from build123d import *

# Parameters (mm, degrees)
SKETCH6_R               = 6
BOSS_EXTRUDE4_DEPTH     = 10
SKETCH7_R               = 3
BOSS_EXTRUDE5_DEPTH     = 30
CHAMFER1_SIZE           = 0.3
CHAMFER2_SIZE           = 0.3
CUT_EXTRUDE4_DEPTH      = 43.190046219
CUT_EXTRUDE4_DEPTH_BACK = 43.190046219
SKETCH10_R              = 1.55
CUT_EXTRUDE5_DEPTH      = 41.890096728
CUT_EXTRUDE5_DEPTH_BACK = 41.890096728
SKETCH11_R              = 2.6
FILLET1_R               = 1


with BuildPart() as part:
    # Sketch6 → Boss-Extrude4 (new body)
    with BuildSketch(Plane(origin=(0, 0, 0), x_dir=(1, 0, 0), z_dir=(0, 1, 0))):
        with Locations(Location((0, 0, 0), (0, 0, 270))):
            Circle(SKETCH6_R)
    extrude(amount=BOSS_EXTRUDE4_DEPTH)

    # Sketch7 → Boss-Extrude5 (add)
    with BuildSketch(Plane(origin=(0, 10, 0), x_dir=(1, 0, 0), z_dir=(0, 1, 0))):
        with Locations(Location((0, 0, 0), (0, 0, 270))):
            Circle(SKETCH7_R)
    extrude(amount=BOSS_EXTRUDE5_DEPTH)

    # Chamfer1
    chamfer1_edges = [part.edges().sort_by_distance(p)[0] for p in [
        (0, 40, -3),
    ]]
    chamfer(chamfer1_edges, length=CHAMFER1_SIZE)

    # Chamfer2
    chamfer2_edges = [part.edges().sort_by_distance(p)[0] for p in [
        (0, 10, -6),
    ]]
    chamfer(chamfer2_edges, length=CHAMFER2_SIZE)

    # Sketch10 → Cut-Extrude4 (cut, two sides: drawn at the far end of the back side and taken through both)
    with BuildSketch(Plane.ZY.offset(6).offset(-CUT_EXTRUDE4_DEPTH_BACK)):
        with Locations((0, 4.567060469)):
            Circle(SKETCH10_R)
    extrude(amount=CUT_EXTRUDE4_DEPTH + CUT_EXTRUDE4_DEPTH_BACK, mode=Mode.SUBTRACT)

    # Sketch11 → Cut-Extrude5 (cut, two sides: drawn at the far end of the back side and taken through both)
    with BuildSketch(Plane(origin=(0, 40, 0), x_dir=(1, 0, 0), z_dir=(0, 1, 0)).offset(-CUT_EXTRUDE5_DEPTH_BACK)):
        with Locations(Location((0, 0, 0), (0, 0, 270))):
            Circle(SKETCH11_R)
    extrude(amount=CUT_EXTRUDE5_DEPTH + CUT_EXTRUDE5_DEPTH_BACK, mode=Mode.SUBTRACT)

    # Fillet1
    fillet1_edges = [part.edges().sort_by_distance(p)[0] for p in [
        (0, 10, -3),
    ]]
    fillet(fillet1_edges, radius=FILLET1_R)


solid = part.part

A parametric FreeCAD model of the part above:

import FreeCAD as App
import Part
import Sketcher
from FreeCAD import Vector


def edges_at(feature, points):
    """Names of the edges that pass closest to the given points."""
    edges = feature.Shape.Edges
    near = lambda p: min(range(len(edges)), key=lambda i: edges[i].distToShape(Part.Vertex(*p))[0])
    return sorted({f"Edge{near(p) + 1}" for p in points})

doc = App.newDocument("Part")
params = doc.addObject("Spreadsheet::Sheet", "Params")
for row, (alias, value) in enumerate([
    ("sketch1_diameter", "12 mm"),
    ("pad1_length", "10 mm"),
    ("sketch2_diameter", "6 mm"),
    ("pad2_length", "30 mm"),
    ("chamfer_size", "0.3 mm"),
    ("chamfer2_size", "0.3 mm"),
    ("sketch3_diameter", "3.1 mm"),
    ("sketch4_diameter", "5.2 mm"),
    ("fillet_radius", "1 mm"),
], start=1):
    params.set(f"A{row}", alias)
    params.set(f"B{row}", "=" + value)
    params.setAlias(f"B{row}", alias)

body = doc.addObject("PartDesign::Body", "Body")

# Sketch on XZ plane
sketch1 = body.newObject("Sketcher::SketchObject", "Sketch")
sketch1.AttachmentSupport = (doc.getObject("XZ_Plane"), [""])
sketch1.MapMode = "FlatFace"
sketch1.addGeometry(Part.Circle(Vector(0, 0, 0), Vector(0, 0, 1), 6), False)
sketch1.addConstraint(Sketcher.Constraint("Coincident", 0, 3, -1, 1))
sketch1.addConstraint(Sketcher.Constraint("Diameter", 0, 12.0))
sketch1.setExpression("Constraints[1]", "Params.sketch1_diameter")
pad1 = body.newObject("PartDesign::Pad", "Pad")
pad1.Profile = sketch1
pad1.setExpression("Length", "Params.pad1_length")
pad1.Reversed = True

# Sketch on XZ plane
sketch2 = body.newObject("Sketcher::SketchObject", "Sketch001")
sketch2.AttachmentSupport = (doc.getObject("XZ_Plane"), [""])
sketch2.MapMode = "FlatFace"
sketch2.AttachmentOffset = App.Placement(Vector(0, 0, -10), App.Rotation())
sketch2.addGeometry(Part.Circle(Vector(0, 0, 0), Vector(0, 0, 1), 3), False)
sketch2.addConstraint(Sketcher.Constraint("Coincident", 0, 3, -1, 1))
sketch2.addConstraint(Sketcher.Constraint("Diameter", 0, 6.0))
sketch2.setExpression("Constraints[1]", "Params.sketch2_diameter")
pad2 = body.newObject("PartDesign::Pad", "Pad001")
pad2.Profile = sketch2
pad2.setExpression("Length", "Params.pad2_length")
pad2.Reversed = True
doc.recompute()

chamfer = body.newObject("PartDesign::Chamfer", "Chamfer")
chamfer.Base = (pad2, edges_at(pad2, [(0, 40, -3)]))
chamfer.setExpression("Size", "Params.chamfer_size")
doc.recompute()

chamfer2 = body.newObject("PartDesign::Chamfer", "Chamfer001")
chamfer2.Base = (chamfer, edges_at(chamfer, [(0, 10, -6)]))
chamfer2.setExpression("Size", "Params.chamfer2_size")

# Sketch on YZ plane
sketch3 = body.newObject("Sketcher::SketchObject", "Sketch002")
sketch3.AttachmentSupport = (doc.getObject("YZ_Plane"), [""])
sketch3.MapMode = "FlatFace"
sketch3.AttachmentOffset = App.Placement(Vector(0, 0, -6), App.Rotation())
sketch3.addGeometry(Part.Circle(Vector(4.6, 0, 0), Vector(0, 0, 1), 1.6), False)
sketch3.addConstraint(Sketcher.Constraint("PointOnObject", 0, 3, -1))
sketch3.addConstraint(Sketcher.Constraint("Diameter", 0, 3.1))
sketch3.addConstraint(Sketcher.Constraint("DistanceX", -1, 1, 0, 3, 4.56706))
sketch3.setExpression("Constraints[1]", "Params.sketch3_diameter")
pocket1 = body.newObject("PartDesign::Pocket", "Pocket")
pocket1.Profile = sketch3
pocket1.Type = "ThroughAll"
pocket1.Midplane = True

# Sketch on XZ plane
sketch4 = body.newObject("Sketcher::SketchObject", "Sketch003")
sketch4.AttachmentSupport = (doc.getObject("XZ_Plane"), [""])
sketch4.MapMode = "FlatFace"
sketch4.AttachmentOffset = App.Placement(Vector(0, 0, -40), App.Rotation())
sketch4.addGeometry(Part.Circle(Vector(0, 0, 0), Vector(0, 0, 1), 2.6), False)
sketch4.addConstraint(Sketcher.Constraint("Coincident", 0, 3, -1, 1))
sketch4.addConstraint(Sketcher.Constraint("Diameter", 0, 5.2))
sketch4.setExpression("Constraints[1]", "Params.sketch4_diameter")
pocket2 = body.newObject("PartDesign::Pocket", "Pocket001")
pocket2.Profile = sketch4
pocket2.Type = "ThroughAll"
pocket2.Midplane = True
doc.recompute()

fillet = body.newObject("PartDesign::Fillet", "Fillet")
fillet.Base = (pocket2, edges_at(pocket2, [(0, 10, -3)]))
fillet.setExpression("Radius", "Params.fillet_radius")

doc.recompute()
